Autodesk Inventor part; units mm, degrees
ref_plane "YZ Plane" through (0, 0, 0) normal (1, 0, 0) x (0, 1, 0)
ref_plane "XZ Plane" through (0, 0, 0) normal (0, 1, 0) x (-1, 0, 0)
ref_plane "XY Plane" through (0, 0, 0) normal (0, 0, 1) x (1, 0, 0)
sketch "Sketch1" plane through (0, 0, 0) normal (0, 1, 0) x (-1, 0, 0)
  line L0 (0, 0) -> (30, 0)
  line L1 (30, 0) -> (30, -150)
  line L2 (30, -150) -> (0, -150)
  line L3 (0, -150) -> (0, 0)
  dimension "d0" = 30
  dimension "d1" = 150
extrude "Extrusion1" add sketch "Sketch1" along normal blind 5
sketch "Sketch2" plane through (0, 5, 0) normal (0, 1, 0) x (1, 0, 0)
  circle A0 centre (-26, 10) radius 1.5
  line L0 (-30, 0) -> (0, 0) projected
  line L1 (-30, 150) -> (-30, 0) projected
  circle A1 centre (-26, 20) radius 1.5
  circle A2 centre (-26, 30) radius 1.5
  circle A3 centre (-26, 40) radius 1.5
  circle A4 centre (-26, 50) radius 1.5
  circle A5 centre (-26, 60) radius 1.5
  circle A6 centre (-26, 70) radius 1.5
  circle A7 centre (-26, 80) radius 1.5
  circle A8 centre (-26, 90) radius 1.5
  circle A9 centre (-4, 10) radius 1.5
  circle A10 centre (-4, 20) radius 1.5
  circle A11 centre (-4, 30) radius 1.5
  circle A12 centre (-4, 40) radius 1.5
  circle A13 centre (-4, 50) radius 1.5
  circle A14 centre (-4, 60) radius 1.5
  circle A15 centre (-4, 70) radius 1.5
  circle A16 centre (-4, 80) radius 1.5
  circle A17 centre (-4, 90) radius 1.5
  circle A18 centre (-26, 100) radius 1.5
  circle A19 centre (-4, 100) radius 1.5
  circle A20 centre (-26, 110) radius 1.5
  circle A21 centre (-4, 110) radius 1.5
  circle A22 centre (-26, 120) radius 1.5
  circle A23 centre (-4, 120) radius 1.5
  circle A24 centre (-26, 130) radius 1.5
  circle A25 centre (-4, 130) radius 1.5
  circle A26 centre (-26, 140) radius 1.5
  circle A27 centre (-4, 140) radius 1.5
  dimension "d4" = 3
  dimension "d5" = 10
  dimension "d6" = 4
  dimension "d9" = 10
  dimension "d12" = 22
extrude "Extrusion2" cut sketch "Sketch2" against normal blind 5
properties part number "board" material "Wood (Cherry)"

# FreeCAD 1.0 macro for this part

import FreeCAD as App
import Part
import Sketcher

doc = App.newDocument("Part")
body = doc.addObject("PartDesign::Body", "Body")

sketch1 = body.newObject("Sketcher::SketchObject", "Sketch")
sketch1.AttachmentSupport = (doc.getObject("XZ_Plane"), [""])
sketch1.MapMode = "FlatFace"
sketch1.addGeometry([
    Part.LineSegment(App.Vector(-30, 0, 0), App.Vector(0, 0, 0)),
    Part.LineSegment(App.Vector(0, 0, 0), App.Vector(0, -150, 0)),
    Part.LineSegment(App.Vector(0, -150, 0), App.Vector(-30, -150, 0)),
    Part.LineSegment(App.Vector(-30, -150, 0), App.Vector(-30, 0, 0)),
], False)
sketch1.addConstraint([
    Sketcher.Constraint("Coincident", 0, 2, 1, 1),
    Sketcher.Constraint("Coincident", 1, 2, 2, 1),
    Sketcher.Constraint("Coincident", 2, 2, 3, 1),
    Sketcher.Constraint("Coincident", 3, 2, 0, 1),
    Sketcher.Constraint("Horizontal", 0),
    Sketcher.Constraint("Vertical", 1),
    Sketcher.Constraint("Horizontal", 2),
    Sketcher.Constraint("Vertical", 3),
    Sketcher.Constraint("Coincident", 0, 2, -1, 1),
    Sketcher.Constraint("DistanceX", 0, 1, 0, 2, 30.0),
    Sketcher.Constraint("DistanceY", 1, 2, 1, 1, 150.0),
])
pad1 = body.newObject("PartDesign::Pad", "Pad")
pad1.Profile = sketch1
pad1.Length = 5
pad1.Reversed = True

sketch2 = body.newObject("Sketcher::SketchObject", "Sketch001")
sketch2.AttachmentSupport = (doc.getObject("XZ_Plane"), [""])
sketch2.MapMode = "FlatFace"
sketch2.AttachmentOffset = App.Placement(App.Vector(0, 0, -5), App.Rotation())
sketch2.addGeometry([
    Part.Circle(App.Vector(-26, -10, 0), App.Vector(0, 0, 1), 1.5),
    Part.Circle(App.Vector(-26, -20, 0), App.Vector(0, 0, 1), 1.5),
    Part.Circle(App.Vector(-26, -30, 0), App.Vector(0, 0, 1), 1.5),
    Part.Circle(App.Vector(-26, -40, 0), App.Vector(0, 0, 1), 1.5),
    Part.Circle(App.Vector(-26, -50, 0), App.Vector(0, 0, 1), 1.5),
    Part.Circle(App.Vector(-26, -60, 0), App.Vector(0, 0, 1), 1.5),
    Part.Circle(App.Vector(-26, -70, 0), App.Vector(0, 0, 1), 1.5),
    Part.Circle(App.Vector(-26, -80, 0), App.Vector(0, 0, 1), 1.5),
    Part.Circle(App.Vector(-26, -90, 0), App.Vector(0, 0, 1), 1.5),
    Part.Circle(App.Vector(-4, -10, 0), App.Vector(0, 0, 1), 1.5),
    Part.Circle(App.Vector(-4, -20, 0), App.Vector(0, 0, 1), 1.5),
    Part.Circle(App.Vector(-4, -30, 0), App.Vector(0, 0, 1), 1.5),
    Part.Circle(App.Vector(-4, -40, 0), App.Vector(0, 0, 1), 1.5),
    Part.Circle(App.Vector(-4, -50, 0), App.Vector(0, 0, 1), 1.5),
    Part.Circle(App.Vector(-4, -60, 0), App.Vector(0, 0, 1), 1.5),
    Part.Circle(App.Vector(-4, -70, 0), App.Vector(0, 0, 1), 1.5),
    Part.Circle(App.Vector(-4, -80, 0), App.Vector(0, 0, 1), 1.5),
    Part.Circle(App.Vector(-4, -90, 0), App.Vector(0, 0, 1), 1.5),
    Part.Circle(App.Vector(-26, -100, 0), App.Vector(0, 0, 1), 1.5),
    Part.Circle(App.Vector(-4, -100, 0), App.Vector(0, 0, 1), 1.5),
    Part.Circle(App.Vector(-26, -110, 0), App.Vector(0, 0, 1), 1.5),
    Part.Circle(App.Vector(-4, -110, 0), App.Vector(0, 0, 1), 1.5),
    Part.Circle(App.Vector(-26, -120, 0), App.Vector(0, 0, 1), 1.5),
    Part.Circle(App.Vector(-4, -120, 0), App.Vector(0, 0, 1), 1.5),
    Part.Circle(App.Vector(-26, -130, 0), App.Vector(0, 0, 1), 1.5),
    Part.Circle(App.Vector(-4, -130, 0), App.Vector(0, 0, 1), 1.5),
    Part.Circle(App.Vector(-26, -140, 0), App.Vector(0, 0, 1), 1.5),
    Part.Circle(App.Vector(-4, -140, 0), App.Vector(0, 0, 1), 1.5),
], False)
sketch2.addConstraint([
    Sketcher.Constraint("Equal", 0, 1),
    Sketcher.Constraint("Equal", 1, 2),
    Sketcher.Constraint("Equal", 2, 3),
    Sketcher.Constraint("Equal", 3, 4),
    Sketcher.Constraint("Equal", 4, 5),
    Sketcher.Constraint("Equal", 5, 6),
    Sketcher.Constraint("Equal", 6, 7),
    Sketcher.Constraint("Equal", 7, 8),
    Sketcher.Constraint("Equal", 8, 9),
    Sketcher.Constraint("Equal", 9, 10),
    Sketcher.Constraint("Equal", 10, 11),
    Sketcher.Constraint("Equal", 11, 12),
    Sketcher.Constraint("Equal", 12, 13),
    Sketcher.Constraint("Equal", 13, 14),
    Sketcher.Constraint("Equal", 14, 15),
    Sketcher.Constraint("Equal", 15, 16),
    Sketcher.Constraint("Equal", 16, 17),
    Sketcher.Constraint("Equal", 17, 18),
    Sketcher.Constraint("Equal", 18, 19),
    Sketcher.Constraint("Equal", 19, 20),
    Sketcher.Constraint("Equal", 20, 21),
    Sketcher.Constraint("Equal", 21, 22),
    Sketcher.Constraint("Equal", 22, 23),
    Sketcher.Constraint("Equal", 23, 24),
    Sketcher.Constraint("Equal", 24, 25),
    Sketcher.Constraint("Equal", 25, 26),
    Sketcher.Constraint("Equal", 26, 27),
    Sketcher.Constraint("Horizontal", 0, 3, 9, 3),
    Sketcher.Constraint("Horizontal", 1, 3, 10, 3),
    Sketcher.Constraint("Horizontal", 2, 3, 11, 3),
    Sketcher.Constraint("Horizontal", 3, 3, 12, 3),
    Sketcher.Constraint("Horizontal", 4, 3, 13, 3),
    Sketcher.Constraint("Horizontal", 5, 3, 14, 3),
    Sketcher.Constraint("Horizontal", 6, 3, 15, 3),
    Sketcher.Constraint("Horizontal", 7, 3, 16, 3),
    Sketcher.Constraint("Horizontal", 8, 3, 17, 3),
    Sketcher.Constraint("Horizontal", 18, 3, 19, 3),
    Sketcher.Constraint("Horizontal", 20, 3, 21, 3),
    Sketcher.Constraint("Horizontal", 22, 3, 23, 3),
    Sketcher.Constraint("Horizontal", 24, 3, 25, 3),
    Sketcher.Constraint("Horizontal", 26, 3, 27, 3),
    Sketcher.Constraint("Vertical", 0, 3, 1, 3),
    Sketcher.Constraint("Vertical", 1, 3, 2, 3),
    Sketcher.Constraint("Vertical", 2, 3, 3, 3),
    Sketcher.Constraint("Vertical", 3, 3, 4, 3),
    Sketcher.Constraint("Vertical", 4, 3, 5, 3),
    Sketcher.Constraint("Vertical", 5, 3, 6, 3),
    Sketcher.Constraint("Vertical", 6, 3, 7, 3),
    Sketcher.Constraint("Vertical", 7, 3, 8, 3),
    Sketcher.Constraint("Vertical", 9, 3, 10, 3),
    Sketcher.Constraint("Vertical", 10, 3, 11, 3),
    Sketcher.Constraint("Vertical", 11, 3, 12, 3),
    Sketcher.Constraint("Vertical", 12, 3, 13, 3),
    Sketcher.Constraint("Vertical", 13, 3, 14, 3),
    Sketcher.Constraint("Vertical", 14, 3, 15, 3),
    Sketcher.Constraint("Vertical", 15, 3, 16, 3),
    Sketcher.Constraint("Vertical", 16, 3, 17, 3),
    Sketcher.Constraint("Vertical", 8, 3, 18, 3),
    Sketcher.Constraint("Vertical", 17, 3, 19, 3),
    Sketcher.Constraint("Vertical", 18, 3, 20, 3),
    Sketcher.Constraint("Vertical", 19, 3, 21, 3),
    Sketcher.Constraint("Vertical", 20, 3, 22, 3),
    Sketcher.Constraint("Vertical", 21, 3, 23, 3),
    Sketcher.Constraint("Vertical", 22, 3, 24, 3),
    Sketcher.Constraint("Vertical", 23, 3, 25, 3),
    Sketcher.Constraint("Vertical", 24, 3, 26, 3),
    Sketcher.Constraint("Vertical", 25, 3, 27, 3),
    Sketcher.Constraint("Diameter", 0, 3.0),
    Sketcher.Constraint("DistanceY", 0, 3, -1, 1, 10.0),
    Sketcher.Constraint("DistanceX", 9, 3, -1, 1, 4.0),
    Sketcher.Constraint("DistanceY", 1, 3, 0, 3, 10.0),
    Sketcher.Constraint("DistanceY", 2, 3, 1, 3, 10.0),
    Sketcher.Constraint("DistanceY", 3, 3, 2, 3, 10.0),
    Sketcher.Constraint("DistanceY", 4, 3, 3, 3, 10.0),
    Sketcher.Constraint("DistanceY", 5, 3, 4, 3, 10.0),
    Sketcher.Constraint("DistanceY", 6, 3, 5, 3, 10.0),
    Sketcher.Constraint("DistanceY", 7, 3, 6, 3, 10.0),
    Sketcher.Constraint("DistanceY", 8, 3, 7, 3, 10.0),
    Sketcher.Constraint("DistanceX", 0, 3, 9, 3, 22.0),
    Sketcher.Constraint("DistanceY", 18, 3, 8, 3, 10.0),
    Sketcher.Constraint("DistanceY", 20, 3, 18, 3, 10.0),
    Sketcher.Constraint("DistanceY", 22, 3, 20, 3, 10.0),
    Sketcher.Constraint("DistanceY", 24, 3, 22, 3, 10.0),
    Sketcher.Constraint("DistanceY", 26, 3, 24, 3, 10.0),
])
pocket1 = body.newObject("PartDesign::Pocket", "Pocket")
pocket1.Profile = sketch2
pocket1.Length = 5
pocket1.Reversed = True

doc.recompute()
